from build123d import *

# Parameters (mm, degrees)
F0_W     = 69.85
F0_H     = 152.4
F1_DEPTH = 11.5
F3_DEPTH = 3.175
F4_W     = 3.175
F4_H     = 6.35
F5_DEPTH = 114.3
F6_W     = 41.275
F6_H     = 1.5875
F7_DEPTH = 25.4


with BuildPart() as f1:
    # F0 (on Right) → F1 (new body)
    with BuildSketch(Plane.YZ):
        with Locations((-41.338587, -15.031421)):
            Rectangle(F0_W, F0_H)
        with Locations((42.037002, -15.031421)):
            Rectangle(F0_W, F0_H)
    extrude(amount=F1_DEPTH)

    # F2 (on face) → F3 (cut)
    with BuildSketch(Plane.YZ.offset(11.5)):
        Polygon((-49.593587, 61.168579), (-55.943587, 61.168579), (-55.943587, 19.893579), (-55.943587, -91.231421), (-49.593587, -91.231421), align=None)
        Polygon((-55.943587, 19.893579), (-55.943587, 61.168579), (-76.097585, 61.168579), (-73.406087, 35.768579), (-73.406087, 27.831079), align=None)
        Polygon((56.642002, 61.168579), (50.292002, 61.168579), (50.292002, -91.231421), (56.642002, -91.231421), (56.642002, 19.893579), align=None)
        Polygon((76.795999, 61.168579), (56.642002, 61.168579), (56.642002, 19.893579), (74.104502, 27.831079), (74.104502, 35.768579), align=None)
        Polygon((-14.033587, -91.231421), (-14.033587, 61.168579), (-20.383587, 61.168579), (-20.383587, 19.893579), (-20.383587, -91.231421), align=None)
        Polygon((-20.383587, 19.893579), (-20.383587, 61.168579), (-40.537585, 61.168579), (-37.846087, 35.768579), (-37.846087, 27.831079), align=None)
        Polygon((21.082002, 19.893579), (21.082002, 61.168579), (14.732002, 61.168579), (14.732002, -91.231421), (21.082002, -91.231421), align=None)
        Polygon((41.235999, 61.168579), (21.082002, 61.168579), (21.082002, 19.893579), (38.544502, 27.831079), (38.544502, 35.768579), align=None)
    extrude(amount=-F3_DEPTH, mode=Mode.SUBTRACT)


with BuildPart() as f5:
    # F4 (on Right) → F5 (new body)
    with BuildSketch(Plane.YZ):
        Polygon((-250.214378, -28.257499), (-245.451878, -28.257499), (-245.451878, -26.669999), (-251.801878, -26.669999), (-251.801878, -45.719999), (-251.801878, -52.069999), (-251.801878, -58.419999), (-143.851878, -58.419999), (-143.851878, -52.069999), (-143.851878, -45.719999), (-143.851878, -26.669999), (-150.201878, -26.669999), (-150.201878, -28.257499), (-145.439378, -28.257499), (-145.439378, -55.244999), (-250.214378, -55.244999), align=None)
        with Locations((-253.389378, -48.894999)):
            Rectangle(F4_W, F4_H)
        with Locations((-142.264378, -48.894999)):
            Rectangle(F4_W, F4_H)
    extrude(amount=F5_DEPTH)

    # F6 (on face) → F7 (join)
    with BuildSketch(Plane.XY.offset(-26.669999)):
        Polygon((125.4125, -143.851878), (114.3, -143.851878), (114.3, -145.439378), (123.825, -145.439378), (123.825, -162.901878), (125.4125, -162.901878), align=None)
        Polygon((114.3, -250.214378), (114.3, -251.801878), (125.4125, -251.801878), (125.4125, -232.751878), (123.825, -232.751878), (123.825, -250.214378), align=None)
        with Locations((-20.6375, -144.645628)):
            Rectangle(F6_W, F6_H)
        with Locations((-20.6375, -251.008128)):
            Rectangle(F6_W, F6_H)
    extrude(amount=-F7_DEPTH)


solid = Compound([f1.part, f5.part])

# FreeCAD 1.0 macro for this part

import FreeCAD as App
import Part
import Sketcher
Q = App.Units.Quantity


def add_polygon(sketch, points):
    """Adds a closed chain of lines whose ends are joined by coincident constraints."""
    first, n = sketch.GeometryCount, len(points)
    for a, b in zip(points, points[1:] + points[:1]):
        sketch.addGeometry(Part.LineSegment(App.Vector(*a, 0), App.Vector(*b, 0)), False)
    for i in range(n):
        sketch.addConstraint(Sketcher.Constraint("Coincident", first + i, 2, first + (i + 1) % n, 1))

doc = App.newDocument("Part")
body = doc.addObject("PartDesign::Body", "Body")
body.AllowCompound = True

sketch1 = doc.addObject("Sketcher::SketchObject", "Sketch")
body.addObject(sketch1)
sketch1.AttachmentSupport = (doc.YZ_Plane, [""])
sketch1.MapMode = "FlatFace"
add_polygon(sketch1, [(-76, 61), (-76, -91), (-6, -91), (-6, 61)])
add_polygon(sketch1, [(7, 61), (7, -91), (77, -91), (77, 61)])
sketch1.addConstraint([
    Sketcher.Constraint("Vertical", 0),
    Sketcher.Constraint("Horizontal", 1),
    Sketcher.Constraint("Vertical", 2),
    Sketcher.Constraint("Horizontal", 3),
    Sketcher.Constraint("Vertical", 4),
    Sketcher.Constraint("Horizontal", 5),
    Sketcher.Constraint("Vertical", 6),
    Sketcher.Constraint("Horizontal", 7),
    Sketcher.Constraint("Horizontal", 1, 2, 4, 2),
    Sketcher.Constraint("Horizontal", 3, 2, 6, 2),
    Sketcher.Constraint("Equal", 3, 5),
    Sketcher.Constraint("DistanceY", 0, 2, 0, 1, Q("6 in")),
    Sketcher.Constraint("DistanceX", 1, 1, 1, 2, Q("2.75 in")),
    Sketcher.Constraint("DistanceX", -1, 1, 4, 2, Q("0.2800001 in")),
    Sketcher.Constraint("DistanceY", 0, 2, -1, 1, 91.231421),
    Sketcher.Constraint("DistanceX", 1, 2, 4, 2, 13.525589),
])
pad1 = doc.addObject("PartDesign::Pad", "Pad")
body.addObject(pad1)
pad1.Profile = sketch1
pad1.Length = 11.5

sketch2 = doc.addObject("Sketcher::SketchObject", "Sketch001")
body.addObject(sketch2)
sketch2.AttachmentSupport = (doc.YZ_Plane, [""])
sketch2.MapMode = "FlatFace"
sketch2.AttachmentOffset = App.Placement(App.Vector(0, 0, 11.5), App.Rotation())
add_polygon(sketch2, [(-50, 61), (-76, 61), (-73, 36), (-73, 28), (-56, 20), (-56, -91), (-50, -91)])
add_polygon(sketch2, [(50, 61), (50, -91), (57, -91), (57, 20), (74, 28), (74, 36), (77, 61)])
add_polygon(sketch2, [(-14, -91), (-14, 61), (-41, 61), (-38, 36), (-38, 28), (-20, 20), (-20, -91)])
add_polygon(sketch2, [(15, 61), (15, -91), (21, -91), (21, 20), (39, 28), (39, 36), (41, 61)])
sketch2.addConstraint([
    Sketcher.Constraint("Horizontal", 0),
    Sketcher.Constraint("Vertical", 2),
    Sketcher.Constraint("Vertical", 4),
    Sketcher.Constraint("Horizontal", 5),
    Sketcher.Constraint("Vertical", 6),
    Sketcher.Constraint("Vertical", 7),
    Sketcher.Constraint("Horizontal", 8),
    Sketcher.Constraint("Vertical", 9),
    Sketcher.Constraint("Vertical", 11),
    Sketcher.Constraint("Horizontal", 13),
    Sketcher.Constraint("Vertical", 14),
    Sketcher.Constraint("Horizontal", 15),
    Sketcher.Constraint("Vertical", 17),
    Sketcher.Constraint("Vertical", 19),
    Sketcher.Constraint("Horizontal", 20),
    Sketcher.Constraint("Vertical", 21),
    Sketcher.Constraint("Horizontal", 22),
    Sketcher.Constraint("Vertical", 23),
    Sketcher.Constraint("Vertical", 25),
    Sketcher.Constraint("Horizontal", 27),
    Sketcher.Constraint("Parallel", 1, 16),
    Sketcher.Constraint("Parallel", 3, 18),
    Sketcher.Constraint("Parallel", 10, 24),
    Sketcher.Constraint("Parallel", 12, 26),
    Sketcher.Constraint("Horizontal", 5, 2, 7, 2),
    Sketcher.Constraint("Horizontal", 3, 2, 9, 2),
    Sketcher.Constraint("Horizontal", 2, 2, 10, 2),
    Sketcher.Constraint("Horizontal", 1, 2, 11, 2),
    Sketcher.Constraint("Horizontal", 6, 2, 12, 2),
    Sketcher.Constraint("Horizontal", 13, 2, 14, 2),
    Sketcher.Constraint("Horizontal", 11, 2, 16, 2),
    Sketcher.Constraint("Horizontal", 10, 2, 17, 2),
    Sketcher.Constraint("Horizontal", 9, 2, 18, 2),
    Sketcher.Constraint("Horizontal", 8, 2, 19, 2),
    Sketcher.Constraint("Horizontal", 20, 2, 21, 2),
    Sketcher.Constraint("Horizontal", 18, 2, 23, 2),
    Sketcher.Constraint("Horizontal", 17, 2, 24, 2),
    Sketcher.Constraint("Horizontal", 16, 2, 25, 2),
    Sketcher.Constraint("Horizontal", 15, 2, 26, 2),
    Sketcher.Constraint("Equal", 5, 8),
    Sketcher.Constraint("Equal", 0, 13),
    Sketcher.Constraint("Equal", 13, 15),
    Sketcher.Constraint("Equal", 20, 22),
    Sketcher.Constraint("Equal", 3, 10),
    Sketcher.Constraint("DistanceY", 6, 1, 6, 2, Q("6 in")),
    Sketcher.Constraint("DistanceY", 1, 2, 0, 2, Q("1 in")),
    Sketcher.Constraint("DistanceX", 5, 1, 5, 2, Q("0.25 in")),
    Sketcher.Constraint("DistanceX", 6, 2, 14, 2, Q("1.4 in")),
    Sketcher.Constraint("DistanceX", 21, 2, 7, 2, Q("1.4 in")),
    Sketcher.Constraint("DistanceY", 2, 2, 2, 1, Q("0.3125 in")),
    Sketcher.Constraint("DistanceY", 4, 2, 4, 1, Q("4.375 in")),
    Sketcher.Constraint("DistanceX", -1, 1, 7, 2, Q("1.9800001 in")),
    Sketcher.Constraint("DistanceX", 2, 2, 3, 2, Q("0.6875 in")),
    Sketcher.Constraint("DistanceX", -1, 1, 12, 2, 76.795999),
    Sketcher.Constraint("DistanceY", -1, 1, 0, 2, 61.168579),
    Sketcher.Constraint("DistanceX", 5, 2, 7, 2, 99.885589),
])
pocket1 = doc.addObject("PartDesign::Pocket", "Pocket")
body.addObject(pocket1)
pocket1.Profile = sketch2
pocket1.Length = Q("0.125 in")
body2 = doc.addObject("PartDesign::Body", "Body001")

sketch3 = doc.addObject("Sketcher::SketchObject", "Sketch002")
body2.addObject(sketch3)
sketch3.AttachmentSupport = (doc.getObject("YZ_Plane001"), [""])
sketch3.MapMode = "FlatFace"
add_polygon(sketch3, [(-250.2, -28.3), (-245.5, -28.3), (-245.5, -26.7), (-251.8, -26.7), (-251.8, -45.7), (-255, -45.7), (-255, -52.1), (-251.8, -52.1), (-251.8, -58.4), (-143.9, -58.4), (-143.9, -52.1), (-140.7, -52.1), (-140.7, -45.7), (-143.9, -45.7), (-143.9, -26.7), (-150.2, -26.7), (-150.2, -28.3), (-145.4, -28.3), (-145.4, -55.2), (-250.2, -55.2)])
sketch3.addConstraint([
    Sketcher.Constraint("Horizontal", 0),
    Sketcher.Constraint("Vertical", 1),
    Sketcher.Constraint("Horizontal", 2),
    Sketcher.Constraint("Vertical", 3),
    Sketcher.Constraint("Horizontal", 4),
    Sketcher.Constraint("Vertical", 5),
    Sketcher.Constraint("Horizontal", 6),
    Sketcher.Constraint("Vertical", 7),
    Sketcher.Constraint("Horizontal", 8),
    Sketcher.Constraint("Vertical", 9),
    Sketcher.Constraint("Horizontal", 10),
    Sketcher.Constraint("Vertical", 11),
    Sketcher.Constraint("Horizontal", 12),
    Sketcher.Constraint("Vertical", 13),
    Sketcher.Constraint("Horizontal", 14),
    Sketcher.Constraint("Vertical", 15),
    Sketcher.Constraint("Horizontal", 16),
    Sketcher.Constraint("Vertical", 17),
    Sketcher.Constraint("Horizontal", 18),
    Sketcher.Constraint("Vertical", 19),
    Sketcher.Constraint("Horizontal", 6, 2, 9, 2),
    Sketcher.Constraint("Horizontal", 4, 2, 11, 2),
    Sketcher.Constraint("Horizontal", 2, 2, 13, 2),
    Sketcher.Constraint("Horizontal", 0, 2, 15, 2),
    Sketcher.Constraint("Vertical", 3, 2, 6, 2),
    Sketcher.Constraint("Vertical", 9, 2, 12, 2),
    Sketcher.Constraint("Equal", 6, 10),
    Sketcher.Constraint("Equal", 2, 14),
    Sketcher.Constraint("Equal", 0, 16),
    Sketcher.Constraint("Equal", 14, 5),
    Sketcher.Constraint("Equal", 5, 7),
    Sketcher.Constraint("DistanceY", 5, 2, 2, 2, Q("1 in")),
    Sketcher.Constraint("DistanceX", 0, 2, 8, 2, Q("4 in")),
    Sketcher.Constraint("DistanceX", 2, 2, 2, 1, Q("0.25 in")),
    Sketcher.Constraint("DistanceY", 3, 2, -1, 1, Q("1.8 in")),
    Sketcher.Constraint("DistanceX", 0, 1, 0, 2, Q("0.1875 in")),
    Sketcher.Constraint("DistanceX", 4, 2, 4, 1, Q("0.125 in")),
    Sketcher.Constraint("DistanceY", 1, 1, 1, 2, Q("0.0625 in")),
    Sketcher.Constraint("DistanceY", 17, 2, 17, 1, Q("1.0625 in")),
    Sketcher.Constraint("DistanceX", 0, 2, -1, 1, 245.451878),
])
pad2 = doc.addObject("PartDesign::Pad", "Pad001")
body2.addObject(pad2)
pad2.Profile = sketch3
pad2.Length = Q("4.5 in")

sketch4 = doc.addObject("Sketcher::SketchObject", "Sketch003")
body2.addObject(sketch4)
sketch4.AttachmentSupport = (doc.getObject("XY_Plane001"), [""])
sketch4.MapMode = "FlatFace"
sketch4.AttachmentOffset = App.Placement(App.Vector(0, 0, -1.05 * 25.4), App.Rotation())
add_polygon(sketch4, [(125.4, -143.9), (114.3, -143.9), (114.3, -145.4), (123.8, -145.4), (123.8, -162.9), (125.4, -162.9)])
add_polygon(sketch4, [(114.3, -250.2), (114.3, -251.8), (125.4, -251.8), (125.4, -232.8), (123.8, -232.8), (123.8, -250.2)])
add_polygon(sketch4, [(-41.3, -143.9), (-41.3, -145.4), (0, -145.4), (0, -143.9)])
add_polygon(sketch4, [(-41.3, -250.2), (-41.3, -251.8), (0, -251.8), (0, -250.2)])
sketch4.addConstraint([
    Sketcher.Constraint("Horizontal", 0),
    Sketcher.Constraint("Vertical", 1),
    Sketcher.Constraint("Horizontal", 2),
    Sketcher.Constraint("Vertical", 3),
    Sketcher.Constraint("Horizontal", 4),
    Sketcher.Constraint("Vertical", 5),
    Sketcher.Constraint("Vertical", 6),
    Sketcher.Constraint("Horizontal", 7),
    Sketcher.Constraint("Vertical", 8),
    Sketcher.Constraint("Horizontal", 9),
    Sketcher.Constraint("Vertical", 10),
    Sketcher.Constraint("Horizontal", 11),
    Sketcher.Constraint("Vertical", 12),
    Sketcher.Constraint("Horizontal", 13),
    Sketcher.Constraint("Vertical", 14),
    Sketcher.Constraint("Horizontal", 15),
    Sketcher.Constraint("Vertical", 16),
    Sketcher.Constraint("Horizontal", 17),
    Sketcher.Constraint("Vertical", 18),
    Sketcher.Constraint("Horizontal", 19),
    Sketcher.Constraint("PointOnObject", 13, 2, -2),
    Sketcher.Constraint("PointOnObject", 17, 2, -2),
    Sketcher.Constraint("Horizontal", 2, 2, 12, 2),
    Sketcher.Constraint("Horizontal", 5, 2, 14, 2),
    Sketcher.Constraint("Horizontal", 7, 2, 16, 2),
    Sketcher.Constraint("Horizontal", 11, 2, 18, 2),
    Sketcher.Constraint("Vertical", 1, 2, 6, 2),
    Sketcher.Constraint("Vertical", 5, 2, 7, 2),
    Sketcher.Constraint("Vertical", 3, 2, 9, 2),
    Sketcher.Constraint("Vertical", 15, 2, 16, 2),
    Sketcher.Constraint("Equal", 9, 1),
    Sketcher.Constraint("Equal", 1, 6),
    Sketcher.Constraint("Equal", 5, 8),
    Sketcher.Constraint("DistanceY", 5, 1, 5, 2, Q("0.75 in")),
    Sketcher.Constraint("DistanceX", -1, 1, 0, 2, Q("4.5 in")),
    Sketcher.Constraint("DistanceY", 6, 2, 3, 2, Q("3.5 in")),
    Sketcher.Constraint("DistanceX", 12, 2, 2, 2, Q("6.5 in")),
    Sketcher.Constraint("DistanceX", 0, 2, 0, 1, Q("0.4375 in")),
    Sketcher.Constraint("DistanceX", 2, 1, 2, 2, Q("0.375 in")),
    Sketcher.Constraint("DistanceY", 0, 2, -1, 1, 143.851878),
])
pad3 = doc.addObject("PartDesign::Pad", "Pad002")
body2.addObject(pad3)
pad3.Profile = sketch4
pad3.Length = Q("1 in")
pad3.Reversed = True

doc.recompute()
